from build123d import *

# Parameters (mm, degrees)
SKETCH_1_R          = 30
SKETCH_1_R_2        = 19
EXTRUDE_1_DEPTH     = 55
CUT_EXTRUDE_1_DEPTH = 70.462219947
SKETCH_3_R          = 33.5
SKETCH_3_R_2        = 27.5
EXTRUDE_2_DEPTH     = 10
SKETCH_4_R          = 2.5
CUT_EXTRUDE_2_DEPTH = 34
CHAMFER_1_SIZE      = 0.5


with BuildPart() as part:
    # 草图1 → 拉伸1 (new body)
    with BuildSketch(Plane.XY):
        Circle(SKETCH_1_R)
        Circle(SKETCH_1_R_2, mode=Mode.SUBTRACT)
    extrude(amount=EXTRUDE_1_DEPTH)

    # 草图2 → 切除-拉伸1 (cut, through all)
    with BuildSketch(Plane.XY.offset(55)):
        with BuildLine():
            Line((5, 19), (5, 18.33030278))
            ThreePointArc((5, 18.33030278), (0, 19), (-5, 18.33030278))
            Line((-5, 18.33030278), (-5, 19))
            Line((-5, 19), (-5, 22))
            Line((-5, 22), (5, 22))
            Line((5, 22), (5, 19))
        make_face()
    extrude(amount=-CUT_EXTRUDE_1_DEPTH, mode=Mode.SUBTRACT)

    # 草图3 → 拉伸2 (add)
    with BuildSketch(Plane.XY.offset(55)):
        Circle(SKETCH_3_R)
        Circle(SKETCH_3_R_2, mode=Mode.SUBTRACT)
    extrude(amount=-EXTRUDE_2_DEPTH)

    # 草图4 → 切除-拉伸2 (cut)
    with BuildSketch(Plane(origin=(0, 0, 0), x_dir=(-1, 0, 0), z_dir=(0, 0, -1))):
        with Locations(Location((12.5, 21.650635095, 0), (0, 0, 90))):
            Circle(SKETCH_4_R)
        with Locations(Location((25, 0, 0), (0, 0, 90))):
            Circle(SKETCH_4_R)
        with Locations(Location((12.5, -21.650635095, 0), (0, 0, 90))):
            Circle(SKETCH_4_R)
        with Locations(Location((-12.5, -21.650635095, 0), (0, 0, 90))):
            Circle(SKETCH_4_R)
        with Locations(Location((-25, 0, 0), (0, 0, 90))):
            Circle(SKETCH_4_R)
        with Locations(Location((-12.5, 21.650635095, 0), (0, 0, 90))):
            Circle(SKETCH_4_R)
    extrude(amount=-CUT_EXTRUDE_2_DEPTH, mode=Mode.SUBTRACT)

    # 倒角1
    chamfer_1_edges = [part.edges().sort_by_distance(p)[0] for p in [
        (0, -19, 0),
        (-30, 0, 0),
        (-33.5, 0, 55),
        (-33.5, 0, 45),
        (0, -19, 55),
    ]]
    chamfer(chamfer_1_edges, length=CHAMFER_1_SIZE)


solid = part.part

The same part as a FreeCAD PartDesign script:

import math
import FreeCAD as App
import Part
import Sketcher
from FreeCAD import Vector


def edges_at(feature, points):
    """Names of the edges that pass closest to the given points."""
    edges = feature.Shape.Edges
    near = lambda p: min(range(len(edges)), key=lambda i: edges[i].distToShape(Part.Vertex(*p))[0])
    return sorted({f"Edge{near(p) + 1}" for p in points})

doc = App.newDocument("Part")
body = doc.addObject("PartDesign::Body", "Body")

sketch1 = doc.addObject("Sketcher::SketchObject", "Sketch")
body.addObject(sketch1)
sketch1.AttachmentSupport = (doc.XY_Plane, [""])
sketch1.MapMode = "FlatFace"
sketch1.addGeometry(Part.Circle(Vector(0, 0, 0), Vector(0, 0, 1), 30), False)
sketch1.addGeometry(Part.Circle(Vector(0, 0, 0), Vector(0, 0, 1), 19), False)
sketch1.addConstraint(Sketcher.Constraint("Coincident", 0, 3, -1, 1))
sketch1.addConstraint(Sketcher.Constraint("Coincident", 1, 3, -1, 1))
sketch1.addConstraint(Sketcher.Constraint("Diameter", 0, 60.0))
sketch1.addConstraint(Sketcher.Constraint("Diameter", 1, 38.0))
pad1 = doc.addObject("PartDesign::Pad", "Pad")
body.addObject(pad1)
pad1.Profile = sketch1
pad1.Length = 55

sketch2 = doc.addObject("Sketcher::SketchObject", "Sketch001")
body.addObject(sketch2)
sketch2.AttachmentSupport = (doc.XY_Plane, [""])
sketch2.MapMode = "FlatFace"
sketch2.AttachmentOffset = App.Placement(Vector(0, 0, 55), App.Rotation())
sketch2.addGeometry(Part.ArcOfCircle(Part.Circle(Vector(0, 0, 0), Vector(0, 0, 1), 19), math.radians(75), math.radians(105)), False)
sketch2.addGeometry(Part.LineSegment(Vector(5, 18.3, 0), Vector(5, 22, 0)), False)
sketch2.addGeometry(Part.LineSegment(Vector(5, 22, 0), Vector(-5, 22, 0)), False)
sketch2.addGeometry(Part.LineSegment(Vector(-5, 22, 0), Vector(-5, 18.3, 0)), False)
sketch2.addConstraint(Sketcher.Constraint("Coincident", 0, 1, 1, 1))
sketch2.addConstraint(Sketcher.Constraint("Coincident", 1, 2, 2, 1))
sketch2.addConstraint(Sketcher.Constraint("Coincident", 2, 2, 3, 1))
sketch2.addConstraint(Sketcher.Constraint("Coincident", 3, 2, 0, 2))
sketch2.addConstraint(Sketcher.Constraint("Vertical", 1))
sketch2.addConstraint(Sketcher.Constraint("Horizontal", 2))
sketch2.addConstraint(Sketcher.Constraint("Vertical", 3))
sketch2.addConstraint(Sketcher.Constraint("Coincident", 0, 3, -1, 1))
sketch2.addConstraint(Sketcher.Constraint("Horizontal", 0, 1, 3, 2))
sketch2.addConstraint(Sketcher.Constraint("Radius", 0, 19.0))
sketch2.addConstraint(Sketcher.Constraint("DistanceX", 2, 2, 2, 1, 10.0))
sketch2.addConstraint(Sketcher.Constraint("DistanceY", -1, 1, 1, 2, 22.0))
pocket1 = doc.addObject("PartDesign::Pocket", "Pocket")
body.addObject(pocket1)
pocket1.Profile = sketch2
pocket1.Type = "ThroughAll"

sketch3 = doc.addObject("Sketcher::SketchObject", "Sketch002")
body.addObject(sketch3)
sketch3.AttachmentSupport = (doc.XY_Plane, [""])
sketch3.MapMode = "FlatFace"
sketch3.AttachmentOffset = App.Placement(Vector(0, 0, 55), App.Rotation())
sketch3.addGeometry(Part.Circle(Vector(0, 0, 0), Vector(0, 0, 1), 34), False)
sketch3.addGeometry(Part.Circle(Vector(0, 0, 0), Vector(0, 0, 1), 28), False)
sketch3.addConstraint(Sketcher.Constraint("Coincident", 0, 3, -1, 1))
sketch3.addConstraint(Sketcher.Constraint("Coincident", 1, 3, -1, 1))
sketch3.addConstraint(Sketcher.Constraint("Diameter", 0, 67.0))
sketch3.addConstraint(Sketcher.Constraint("Diameter", 1, 55.0))
pad2 = doc.addObject("PartDesign::Pad", "Pad001")
body.addObject(pad2)
pad2.Profile = sketch3
pad2.Length = 10
pad2.Reversed = True

sketch4 = doc.addObject("Sketcher::SketchObject", "Sketch003")
body.addObject(sketch4)
sketch4.AttachmentSupport = (doc.XY_Plane, [""])
sketch4.MapMode = "FlatFace"
sketch4.addGeometry(Part.Circle(Vector(-12.5, 21.7, 0), Vector(0, 0, 1), 2.5), False)
sketch4.addGeometry(Part.Circle(Vector(-25, 0, 0), Vector(0, 0, 1), 2.5), False)
sketch4.addGeometry(Part.Circle(Vector(-12.5, -21.7, 0), Vector(0, 0, 1), 2.5), False)
sketch4.addGeometry(Part.Circle(Vector(12.5, -21.7, 0), Vector(0, 0, 1), 2.5), False)
sketch4.addGeometry(Part.Circle(Vector(25, 0, 0), Vector(0, 0, 1), 2.5), False)
sketch4.addGeometry(Part.Circle(Vector(12.5, 21.7, 0), Vector(0, 0, 1), 2.5), False)
sketch4.addConstraint(Sketcher.Constraint("Equal", 0, 1))
sketch4.addConstraint(Sketcher.Constraint("Equal", 1, 2))
sketch4.addConstraint(Sketcher.Constraint("Equal", 2, 3))
sketch4.addConstraint(Sketcher.Constraint("Equal", 3, 4))
sketch4.addConstraint(Sketcher.Constraint("Equal", 4, 5))
sketch4.addConstraint(Sketcher.Constraint("Symmetric", 0, 3, 3, 3, -1, 1))
sketch4.addConstraint(Sketcher.Constraint("Symmetric", 1, 3, 4, 3, -1, 1))
sketch4.addConstraint(Sketcher.Constraint("Symmetric", 2, 3, 5, 3, -1, 1))
sketch4.addConstraint(Sketcher.Constraint("Symmetric", 2, 3, 3, 3, -2))
sketch4.addConstraint(Sketcher.Constraint("PointOnObject", 1, 3, -1))
sketch4.addConstraint(Sketcher.Constraint("Diameter", 0, 5.0))
sketch4.addConstraint(Sketcher.Constraint("DistanceX", 1, 3, -1, 1, 25.0))
sketch4.addConstraint(Sketcher.Constraint("DistanceX", 2, 3, 3, 3, 25.0))
sketch4.addConstraint(Sketcher.Constraint("DistanceY", 2, 3, 0, 3, 43.30127))
pocket2 = doc.addObject("PartDesign::Pocket", "Pocket001")
body.addObject(pocket2)
pocket2.Profile = sketch4
pocket2.Length = 34
pocket2.Reversed = True
doc.recompute()

chamfer = doc.addObject("PartDesign::Chamfer", "Chamfer")
body.addObject(chamfer)
chamfer.Base = (pocket2, edges_at(pocket2, [
    (0, -19, 0),
    (-30, 0, 0),
    (-33.5, 0, 55),
    (-33.5, 0, 45),
    (0, -19, 55),
]))
chamfer.Size = 0.5

doc.recompute()
